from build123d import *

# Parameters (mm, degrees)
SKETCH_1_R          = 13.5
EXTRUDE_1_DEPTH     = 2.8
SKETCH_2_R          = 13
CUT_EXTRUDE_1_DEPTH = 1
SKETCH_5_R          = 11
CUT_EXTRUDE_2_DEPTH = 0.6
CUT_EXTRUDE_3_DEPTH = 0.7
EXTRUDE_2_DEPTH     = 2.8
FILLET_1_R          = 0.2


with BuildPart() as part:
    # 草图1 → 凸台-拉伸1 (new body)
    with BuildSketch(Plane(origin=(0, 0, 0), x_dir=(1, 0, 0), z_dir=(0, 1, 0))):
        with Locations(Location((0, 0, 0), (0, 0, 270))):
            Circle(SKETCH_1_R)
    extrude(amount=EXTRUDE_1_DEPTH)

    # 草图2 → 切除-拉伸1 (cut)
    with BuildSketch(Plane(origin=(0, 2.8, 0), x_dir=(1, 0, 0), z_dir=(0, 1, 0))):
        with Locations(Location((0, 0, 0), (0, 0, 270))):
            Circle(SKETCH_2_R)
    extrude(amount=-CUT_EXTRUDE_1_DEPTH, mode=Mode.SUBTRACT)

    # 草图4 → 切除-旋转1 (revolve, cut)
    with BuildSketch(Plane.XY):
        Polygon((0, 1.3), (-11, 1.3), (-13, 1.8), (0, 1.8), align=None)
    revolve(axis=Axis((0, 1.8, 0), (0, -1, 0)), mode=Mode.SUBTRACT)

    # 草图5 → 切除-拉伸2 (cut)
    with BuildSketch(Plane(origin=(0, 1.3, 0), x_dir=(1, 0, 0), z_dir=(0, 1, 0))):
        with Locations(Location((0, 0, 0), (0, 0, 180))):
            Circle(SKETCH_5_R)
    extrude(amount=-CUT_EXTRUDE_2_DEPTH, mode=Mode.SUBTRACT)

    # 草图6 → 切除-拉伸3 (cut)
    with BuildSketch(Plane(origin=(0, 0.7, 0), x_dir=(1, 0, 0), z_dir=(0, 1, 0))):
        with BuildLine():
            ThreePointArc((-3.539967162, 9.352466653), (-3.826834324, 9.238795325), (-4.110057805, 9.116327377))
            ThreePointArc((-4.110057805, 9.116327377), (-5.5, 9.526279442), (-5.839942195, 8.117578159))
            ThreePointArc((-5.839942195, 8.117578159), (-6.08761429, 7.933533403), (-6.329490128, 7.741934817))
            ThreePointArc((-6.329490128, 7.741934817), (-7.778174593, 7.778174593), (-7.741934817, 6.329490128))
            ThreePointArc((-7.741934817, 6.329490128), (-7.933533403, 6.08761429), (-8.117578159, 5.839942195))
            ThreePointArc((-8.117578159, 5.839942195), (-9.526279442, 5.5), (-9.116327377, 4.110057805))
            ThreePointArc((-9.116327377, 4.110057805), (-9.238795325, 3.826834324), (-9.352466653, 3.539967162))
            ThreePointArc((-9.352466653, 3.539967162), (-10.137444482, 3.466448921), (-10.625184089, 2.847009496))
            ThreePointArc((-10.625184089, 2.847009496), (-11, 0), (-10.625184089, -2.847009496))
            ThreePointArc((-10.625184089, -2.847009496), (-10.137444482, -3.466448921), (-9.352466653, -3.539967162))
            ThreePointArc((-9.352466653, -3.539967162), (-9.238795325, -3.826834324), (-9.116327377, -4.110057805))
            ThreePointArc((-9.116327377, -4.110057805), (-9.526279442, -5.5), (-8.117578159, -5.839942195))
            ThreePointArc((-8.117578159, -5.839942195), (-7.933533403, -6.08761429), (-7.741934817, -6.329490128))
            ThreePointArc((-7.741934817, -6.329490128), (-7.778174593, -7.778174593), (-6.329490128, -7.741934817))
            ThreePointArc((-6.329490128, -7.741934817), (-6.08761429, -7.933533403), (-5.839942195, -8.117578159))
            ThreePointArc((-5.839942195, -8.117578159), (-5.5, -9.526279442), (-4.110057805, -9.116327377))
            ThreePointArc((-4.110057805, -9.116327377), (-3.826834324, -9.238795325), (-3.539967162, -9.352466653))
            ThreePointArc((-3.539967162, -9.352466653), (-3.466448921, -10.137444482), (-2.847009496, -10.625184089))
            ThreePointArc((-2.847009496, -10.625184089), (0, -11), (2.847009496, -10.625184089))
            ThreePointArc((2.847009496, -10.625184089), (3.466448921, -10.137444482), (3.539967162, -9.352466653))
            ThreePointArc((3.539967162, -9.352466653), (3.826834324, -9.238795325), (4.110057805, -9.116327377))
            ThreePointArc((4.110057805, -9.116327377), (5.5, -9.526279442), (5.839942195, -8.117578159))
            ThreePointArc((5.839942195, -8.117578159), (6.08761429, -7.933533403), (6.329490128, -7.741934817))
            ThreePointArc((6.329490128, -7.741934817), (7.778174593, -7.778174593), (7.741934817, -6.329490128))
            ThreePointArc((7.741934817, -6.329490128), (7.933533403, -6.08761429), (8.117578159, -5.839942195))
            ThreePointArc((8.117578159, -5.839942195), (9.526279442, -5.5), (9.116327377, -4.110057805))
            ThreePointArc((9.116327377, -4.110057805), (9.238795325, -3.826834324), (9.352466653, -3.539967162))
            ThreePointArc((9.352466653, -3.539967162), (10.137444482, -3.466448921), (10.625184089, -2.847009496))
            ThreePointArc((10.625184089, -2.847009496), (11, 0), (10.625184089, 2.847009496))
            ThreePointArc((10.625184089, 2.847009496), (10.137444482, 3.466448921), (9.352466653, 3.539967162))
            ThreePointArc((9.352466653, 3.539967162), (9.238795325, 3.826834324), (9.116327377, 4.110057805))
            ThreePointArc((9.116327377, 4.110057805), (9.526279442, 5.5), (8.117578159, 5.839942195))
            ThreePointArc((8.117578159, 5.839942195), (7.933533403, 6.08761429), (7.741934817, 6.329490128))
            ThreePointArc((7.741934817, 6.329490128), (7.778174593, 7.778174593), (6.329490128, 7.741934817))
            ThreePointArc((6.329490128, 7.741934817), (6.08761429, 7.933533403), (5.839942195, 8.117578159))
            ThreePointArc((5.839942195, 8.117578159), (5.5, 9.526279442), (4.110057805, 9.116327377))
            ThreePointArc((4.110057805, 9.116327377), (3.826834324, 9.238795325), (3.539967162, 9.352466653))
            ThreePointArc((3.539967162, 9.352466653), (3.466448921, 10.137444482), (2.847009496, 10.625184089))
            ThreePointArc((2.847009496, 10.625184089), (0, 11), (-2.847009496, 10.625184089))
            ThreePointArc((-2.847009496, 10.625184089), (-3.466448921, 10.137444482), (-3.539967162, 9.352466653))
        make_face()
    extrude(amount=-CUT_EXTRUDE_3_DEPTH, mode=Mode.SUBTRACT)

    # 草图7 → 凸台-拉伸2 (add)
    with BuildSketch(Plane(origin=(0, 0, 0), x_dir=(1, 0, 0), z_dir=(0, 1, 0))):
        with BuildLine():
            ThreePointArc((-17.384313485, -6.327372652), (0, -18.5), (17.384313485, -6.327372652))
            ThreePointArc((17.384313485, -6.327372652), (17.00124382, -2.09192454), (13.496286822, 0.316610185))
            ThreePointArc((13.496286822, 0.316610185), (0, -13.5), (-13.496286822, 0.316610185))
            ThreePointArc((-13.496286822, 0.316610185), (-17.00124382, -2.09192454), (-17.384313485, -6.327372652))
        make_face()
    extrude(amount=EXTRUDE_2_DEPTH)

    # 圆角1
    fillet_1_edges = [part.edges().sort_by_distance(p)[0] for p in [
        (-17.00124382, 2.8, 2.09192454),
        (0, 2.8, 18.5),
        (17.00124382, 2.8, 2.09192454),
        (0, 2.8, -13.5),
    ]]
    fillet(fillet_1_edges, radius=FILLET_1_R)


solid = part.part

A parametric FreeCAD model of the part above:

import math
import FreeCAD as App
import Part
import Sketcher
from FreeCAD import Vector
Q = App.Units.Quantity


def edges_at(feature, points):
    """Names of the edges that pass closest to the given points."""
    edges = feature.Shape.Edges
    near = lambda p: min(range(len(edges)), key=lambda i: edges[i].distToShape(Part.Vertex(*p))[0])
    return sorted({f"Edge{near(p) + 1}" for p in points})

doc = App.newDocument("Part")
params = doc.addObject("Spreadsheet::Sheet", "Params")
for row, (alias, value) in enumerate([
    ("sketch1_diameter", "27 mm"),
    ("pad1_length", "2.8 mm"),
    ("sketch2_diameter", "26 mm"),
    ("pocket1_length", "1 mm"),
    ("sketch3_width", "11 mm"),
    ("sketch3_width2", "13 mm"),
    ("sketch3_height", "0.5 mm"),
    ("groove_angle", "360 deg"),
    ("sketch4_diameter", "22 mm"),
    ("pocket2_length", "0.6 mm"),
    ("sketch5_radius", "10 mm"),
    ("sketch5_radius2", "1 mm"),
    ("sketch5_radius3", "11 mm"),
    ("pocket3_length", "0.7 mm"),
    ("sketch6_radius", "5 mm"),
    ("sketch6_radius2", "18.5 mm"),
    ("sketch6_radius3", "13.5 mm"),
    ("pad2_length", "2.8 mm"),
    ("fillet_radius", "0.2 mm"),
], start=1):
    params.set(f"A{row}", alias)
    params.set(f"B{row}", "=" + value)
    params.setAlias(f"B{row}", alias)

body = doc.addObject("PartDesign::Body", "Body")

# Sketch on XZ plane
sketch1 = body.newObject("Sketcher::SketchObject", "Sketch")
sketch1.AttachmentSupport = (doc.getObject("XZ_Plane"), [""])
sketch1.MapMode = "FlatFace"
sketch1.addGeometry(Part.Circle(Vector(0, 0, 0), Vector(0, 0, 1), 14), False)
sketch1.addConstraint([
    Sketcher.Constraint("Coincident", 0, 3, -1, 1),
    Sketcher.Constraint("Diameter", 0, Q("27 mm")),
])
sketch1.setExpression("Constraints[1]", "Params.sketch1_diameter")
pad1 = body.newObject("PartDesign::Pad", "Pad")
pad1.Profile = sketch1
pad1.setExpression("Length", "Params.pad1_length")
pad1.Reversed = True

# Sketch on XZ plane
sketch2 = body.newObject("Sketcher::SketchObject", "Sketch001")
sketch2.AttachmentSupport = (doc.getObject("XZ_Plane"), [""])
sketch2.MapMode = "FlatFace"
sketch2.AttachmentOffset = App.Placement(Vector(0, 0, -2.8), App.Rotation())
sketch2.addGeometry(Part.Circle(Vector(0, 0, 0), Vector(0, 0, 1), 13), False)
sketch2.addConstraint([
    Sketcher.Constraint("Coincident", 0, 3, -1, 1),
    Sketcher.Constraint("Diameter", 0, Q("26 mm")),
])
sketch2.setExpression("Constraints[1]", "Params.sketch2_diameter")
pocket1 = body.newObject("PartDesign::Pocket", "Pocket")
pocket1.Profile = sketch2
pocket1.setExpression("Length", "Params.pocket1_length")
pocket1.Reversed = True

# Sketch on XY plane
sketch3 = body.newObject("Sketcher::SketchObject", "Sketch002")
sketch3.AttachmentSupport = (doc.getObject("XY_Plane"), [""])
sketch3.MapMode = "FlatFace"
sketch3.addGeometry([
    Part.LineSegment(Vector(-11, 1.3, 0), Vector(0, 1.3, 0)),
    Part.LineSegment(Vector(0, 1.3, 0), Vector(0, 1.8, 0)),
    Part.LineSegment(Vector(0, 1.8, 0), Vector(-13, 1.8, 0)),
    Part.LineSegment(Vector(-13, 1.8, 0), Vector(-11, 1.3, 0)),
], False)
sketch3.addConstraint([
    Sketcher.Constraint("Coincident", 0, 2, 1, 1),
    Sketcher.Constraint("Coincident", 1, 2, 2, 1),
    Sketcher.Constraint("Coincident", 2, 2, 3, 1),
    Sketcher.Constraint("Coincident", 3, 2, 0, 1),
    Sketcher.Constraint("Horizontal", 0),
    Sketcher.Constraint("Vertical", 1),
    Sketcher.Constraint("Horizontal", 2),
    Sketcher.Constraint("PointOnObject", 0, 2, -2),
    Sketcher.Constraint("DistanceX", 0, 1, 0, 2, Q("11 mm")),
    Sketcher.Constraint("DistanceX", 2, 2, 2, 1, Q("13 mm")),
    Sketcher.Constraint("DistanceY", 1, 1, 1, 2, Q("0.5 mm")),
    Sketcher.Constraint("DistanceY", -1, 1, 0, 2, Q("1.3 mm")),
])
sketch3.setExpression("Constraints[8]", "Params.sketch3_width")
sketch3.setExpression("Constraints[9]", "Params.sketch3_width2")
sketch3.setExpression("Constraints[10]", "Params.sketch3_height")
groove = body.newObject("PartDesign::Groove", "Groove")
groove.Profile = sketch3
groove.ReferenceAxis = (sketch3, ["V_Axis"])
groove.setExpression("Angle", "Params.groove_angle")

# Sketch on XZ plane
sketch4 = body.newObject("Sketcher::SketchObject", "Sketch003")
sketch4.AttachmentSupport = (doc.getObject("XZ_Plane"), [""])
sketch4.MapMode = "FlatFace"
sketch4.AttachmentOffset = App.Placement(Vector(0, 0, -1.3), App.Rotation())
sketch4.addGeometry(Part.Circle(Vector(0, 0, 0), Vector(0, 0, 1), 11), False)
sketch4.addConstraint([
    Sketcher.Constraint("Coincident", 0, 3, -1, 1),
    Sketcher.Constraint("Diameter", 0, Q("22 mm")),
])
sketch4.setExpression("Constraints[1]", "Params.sketch4_diameter")
pocket2 = body.newObject("PartDesign::Pocket", "Pocket001")
pocket2.Profile = sketch4
pocket2.setExpression("Length", "Params.pocket2_length")
pocket2.Reversed = True

# Sketch on XZ plane
sketch5 = body.newObject("Sketcher::SketchObject", "Sketch004")
sketch5.AttachmentSupport = (doc.getObject("XZ_Plane"), [""])
sketch5.MapMode = "FlatFace"
sketch5.AttachmentOffset = App.Placement(Vector(0, 0, -0.7), App.Rotation())
sketch5.addGeometry([
    Part.ArcOfCircle(Part.Circle(Vector(0, 0, 0), Vector(0, 0, 1), 10), math.radians(-114.27), math.radians(-110.73)),  # 0
    Part.ArcOfCircle(Part.Circle(Vector(-5, -8.7, 0), Vector(0, 0, 1), 1), math.radians(147), math.radians(333)),  # 1
    Part.ArcOfCircle(Part.Circle(Vector(0, 0, 0), Vector(0, 0, 1), 10), math.radians(-129.27), math.radians(-125.73)),  # 2
    Part.ArcOfCircle(Part.Circle(Vector(-7.1, -7.1, 0), Vector(0, 0, 1), 1), math.radians(132), math.radians(318)),  # 3
    Part.ArcOfCircle(Part.Circle(Vector(0, 0, 0), Vector(0, 0, 1), 10), math.radians(-144.27), math.radians(-140.73)),  # 4
    Part.ArcOfCircle(Part.Circle(Vector(-8.7, -5, 0), Vector(0, 0, 1), 1), math.radians(117), math.radians(303)),  # 5
    Part.ArcOfCircle(Part.Circle(Vector(0, 0, 0), Vector(0, 0, 1), 10), math.radians(-159.27), math.radians(-155.73)),  # 6
    Part.ArcOfCircle(Part.Circle(Vector(-9.7, -2.6, 0), Vector(0, 0, 1), 1), math.radians(-165), math.radians(-72)),  # 7
    Part.ArcOfCircle(Part.Circle(Vector(0, 0, 0), Vector(0, 0, 1), 11), math.radians(165), math.radians(195)),  # 8
    Part.ArcOfCircle(Part.Circle(Vector(-9.7, 2.6, 0), Vector(0, 0, 1), 1), math.radians(72), math.radians(165)),  # 9
    Part.ArcOfCircle(Part.Circle(Vector(0, 0, 0), Vector(0, 0, 1), 10), math.radians(155.73), math.radians(159.27)),  # 10
    Part.ArcOfCircle(Part.Circle(Vector(-8.7, 5, 0), Vector(0, 0, 1), 1), math.radians(57), math.radians(243)),  # 11
    Part.ArcOfCircle(Part.Circle(Vector(0, 0, 0), Vector(0, 0, 1), 10), math.radians(140.73), math.radians(144.27)),  # 12
    Part.ArcOfCircle(Part.Circle(Vector(-7.1, 7.1, 0), Vector(0, 0, 1), 1), math.radians(42), math.radians(228)),  # 13
    Part.ArcOfCircle(Part.Circle(Vector(0, 0, 0), Vector(0, 0, 1), 10), math.radians(125.73), math.radians(129.27)),  # 14
    Part.ArcOfCircle(Part.Circle(Vector(-5, 8.7, 0), Vector(0, 0, 1), 1), math.radians(27), math.radians(213)),  # 15
    Part.ArcOfCircle(Part.Circle(Vector(0, 0, 0), Vector(0, 0, 1), 10), math.radians(110.73), math.radians(114.27)),  # 16
    Part.ArcOfCircle(Part.Circle(Vector(-2.6, 9.7, 0), Vector(0, 0, 1), 1), math.radians(105), math.radians(198)),  # 17
    Part.ArcOfCircle(Part.Circle(Vector(0, 0, 0), Vector(0, 0, 1), 11), math.radians(75), math.radians(105)),  # 18
    Part.ArcOfCircle(Part.Circle(Vector(2.6, 9.7, 0), Vector(0, 0, 1), 1), math.radians(-18), math.radians(75)),  # 19
    Part.ArcOfCircle(Part.Circle(Vector(0, 0, 0), Vector(0, 0, 1), 10), math.radians(65.73), math.radians(69.27)),  # 20
    Part.ArcOfCircle(Part.Circle(Vector(5, 8.7, 0), Vector(0, 0, 1), 1), math.radians(-33), math.radians(153)),  # 21
    Part.ArcOfCircle(Part.Circle(Vector(0, 0, 0), Vector(0, 0, 1), 10), math.radians(50.73), math.radians(54.27)),  # 22
    Part.ArcOfCircle(Part.Circle(Vector(7.1, 7.1, 0), Vector(0, 0, 1), 1), math.radians(-48), math.radians(138)),  # 23
    Part.ArcOfCircle(Part.Circle(Vector(0, 0, 0), Vector(0, 0, 1), 10), math.radians(35.73), math.radians(39.27)),  # 24
    Part.ArcOfCircle(Part.Circle(Vector(8.7, 5, 0), Vector(0, 0, 1), 1), math.radians(-63), math.radians(123)),  # 25
    Part.ArcOfCircle(Part.Circle(Vector(0, 0, 0), Vector(0, 0, 1), 10), math.radians(20.73), math.radians(24.27)),  # 26
    Part.ArcOfCircle(Part.Circle(Vector(9.7, 2.6, 0), Vector(0, 0, 1), 1), math.radians(15), math.radians(108)),  # 27
    Part.ArcOfCircle(Part.Circle(Vector(0, 0, 0), Vector(0, 0, 1), 11), math.radians(-15), math.radians(15)),  # 28
    Part.ArcOfCircle(Part.Circle(Vector(9.7, -2.6, 0), Vector(0, 0, 1), 1), math.radians(-108), math.radians(-15)),  # 29
    Part.ArcOfCircle(Part.Circle(Vector(0, 0, 0), Vector(0, 0, 1), 10), math.radians(-24.27), math.radians(-20.73)),  # 30
    Part.ArcOfCircle(Part.Circle(Vector(8.7, -5, 0), Vector(0, 0, 1), 1), math.radians(-123), math.radians(63)),  # 31
    Part.ArcOfCircle(Part.Circle(Vector(0, 0, 0), Vector(0, 0, 1), 10), math.radians(-39.27), math.radians(-35.73)),  # 32
    Part.ArcOfCircle(Part.Circle(Vector(7.1, -7.1, 0), Vector(0, 0, 1), 1), math.radians(-138), math.radians(48)),  # 33
    Part.ArcOfCircle(Part.Circle(Vector(0, 0, 0), Vector(0, 0, 1), 10), math.radians(-54.27), math.radians(-50.73)),  # 34
    Part.ArcOfCircle(Part.Circle(Vector(5, -8.7, 0), Vector(0, 0, 1), 1), math.radians(-153), math.radians(33)),  # 35
    Part.ArcOfCircle(Part.Circle(Vector(0, 0, 0), Vector(0, 0, 1), 10), math.radians(-69.27), math.radians(-65.73)),  # 36
    Part.ArcOfCircle(Part.Circle(Vector(2.6, -9.7, 0), Vector(0, 0, 1), 1), math.radians(-75), math.radians(18)),  # 37
    Part.ArcOfCircle(Part.Circle(Vector(0, 0, 0), Vector(0, 0, 1), 11), math.radians(-105), math.radians(-75)),  # 38
    Part.ArcOfCircle(Part.Circle(Vector(-2.6, -9.7, 0), Vector(0, 0, 1), 1), math.radians(162), math.radians(255)),  # 39
], False)
sketch5.addConstraint([
    Sketcher.Constraint("Coincident", 0, 1, 1, 2),
    Sketcher.Constraint("Coincident", 1, 1, 2, 2),
    Sketcher.Constraint("Coincident", 2, 1, 3, 2),
    Sketcher.Constraint("Coincident", 3, 1, 4, 2),
    Sketcher.Constraint("Coincident", 4, 1, 5, 2),
    Sketcher.Constraint("Coincident", 5, 1, 6, 2),
    Sketcher.Constraint("Coincident", 6, 1, 7, 2),
    Sketcher.Constraint("Tangent", 7, 1, 8, 2),
    Sketcher.Constraint("Tangent", 8, 1, 9, 2),
    Sketcher.Constraint("Coincident", 9, 1, 10, 2),
    Sketcher.Constraint("Coincident", 10, 1, 11, 2),
    Sketcher.Constraint("Coincident", 11, 1, 12, 2),
    Sketcher.Constraint("Coincident", 12, 1, 13, 2),
    Sketcher.Constraint("Coincident", 13, 1, 14, 2),
    Sketcher.Constraint("Coincident", 14, 1, 15, 2),
    Sketcher.Constraint("Coincident", 15, 1, 16, 2),
    Sketcher.Constraint("Coincident", 16, 1, 17, 2),
    Sketcher.Constraint("Tangent", 17, 1, 18, 2),
    Sketcher.Constraint("Tangent", 18, 1, 19, 2),
    Sketcher.Constraint("Coincident", 19, 1, 20, 2),
    Sketcher.Constraint("Coincident", 20, 1, 21, 2),
    Sketcher.Constraint("Coincident", 21, 1, 22, 2),
    Sketcher.Constraint("Coincident", 22, 1, 23, 2),
    Sketcher.Constraint("Coincident", 23, 1, 24, 2),
    Sketcher.Constraint("Coincident", 24, 1, 25, 2),
    Sketcher.Constraint("Coincident", 25, 1, 26, 2),
    Sketcher.Constraint("Coincident", 26, 1, 27, 2),
    Sketcher.Constraint("Tangent", 27, 1, 28, 2),
    Sketcher.Constraint("Tangent", 28, 1, 29, 2),
    Sketcher.Constraint("Coincident", 29, 1, 30, 2),
    Sketcher.Constraint("Coincident", 30, 1, 31, 2),
    Sketcher.Constraint("Coincident", 31, 1, 32, 2),
    Sketcher.Constraint("Coincident", 32, 1, 33, 2),
    Sketcher.Constraint("Coincident", 33, 1, 34, 2),
    Sketcher.Constraint("Coincident", 34, 1, 35, 2),
    Sketcher.Constraint("Coincident", 35, 1, 36, 2),
    Sketcher.Constraint("Coincident", 36, 1, 37, 2),
    Sketcher.Constraint("Tangent", 37, 1, 38, 2),
    Sketcher.Constraint("Tangent", 38, 1, 39, 2),
    Sketcher.Constraint("Coincident", 39, 1, 0, 2),
    Sketcher.Constraint("Coincident", 0, 3, -1, 1),
    Sketcher.Constraint("Coincident", 2, 3, -1, 1),
    Sketcher.Constraint("Coincident", 4, 3, -1, 1),
    Sketcher.Constraint("Coincident", 6, 3, -1, 1),
    Sketcher.Constraint("Coincident", 8, 3, -1, 1),
    Sketcher.Constraint("Coincident", 10, 3, -1, 1),
    Sketcher.Constraint("Coincident", 12, 3, -1, 1),
    Sketcher.Constraint("Coincident", 14, 3, -1, 1),
    Sketcher.Constraint("Coincident", 16, 3, -1, 1),
    Sketcher.Constraint("Coincident", 18, 3, -1, 1),
    Sketcher.Constraint("Coincident", 20, 3, -1, 1),
    Sketcher.Constraint("Coincident", 22, 3, -1, 1),
    Sketcher.Constraint("Coincident", 24, 3, -1, 1),
    Sketcher.Constraint("Coincident", 26, 3, -1, 1),
    Sketcher.Constraint("Coincident", 28, 3, -1, 1),
    Sketcher.Constraint("Coincident", 30, 3, -1, 1),
    Sketcher.Constraint("Coincident", 32, 3, -1, 1),
    Sketcher.Constraint("Coincident", 34, 3, -1, 1),
    Sketcher.Constraint("Coincident", 36, 3, -1, 1),
    Sketcher.Constraint("Coincident", 38, 3, -1, 1),
    Sketcher.Constraint("Equal", 0, 2),
    Sketcher.Constraint("Equal", 1, 3),
    Sketcher.Constraint("Equal", 2, 4),
    Sketcher.Constraint("Equal", 3, 5),
    Sketcher.Constraint("Equal", 4, 6),
    Sketcher.Constraint("Equal", 5, 7),
    Sketcher.Constraint("Equal", 7, 9),
    Sketcher.Constraint("Equal", 6, 10),
    Sketcher.Constraint("Equal", 9, 11),
    Sketcher.Constraint("Equal", 10, 12),
    Sketcher.Constraint("Equal", 11, 13),
    Sketcher.Constraint("Equal", 12, 14),
    Sketcher.Constraint("Equal", 13, 15),
    Sketcher.Constraint("Equal", 14, 16),
    Sketcher.Constraint("Equal", 15, 17),
    Sketcher.Constraint("Equal", 8, 18),
    Sketcher.Constraint("Equal", 17, 19),
    Sketcher.Constraint("Equal", 16, 20),
    Sketcher.Constraint("Equal", 19, 21),
    Sketcher.Constraint("Equal", 20, 22),
    Sketcher.Constraint("Equal", 21, 23),
    Sketcher.Constraint("Equal", 22, 24),
    Sketcher.Constraint("Equal", 23, 25),
    Sketcher.Constraint("Equal", 24, 26),
    Sketcher.Constraint("Equal", 25, 27),
    Sketcher.Constraint("Equal", 18, 28),
    Sketcher.Constraint("Equal", 27, 29),
    Sketcher.Constraint("Equal", 26, 30),
    Sketcher.Constraint("Equal", 29, 31),
    Sketcher.Constraint("Equal", 30, 32),
    Sketcher.Constraint("Equal", 31, 33),
    Sketcher.Constraint("Equal", 32, 34),
    Sketcher.Constraint("Equal", 33, 35),
    Sketcher.Constraint("Equal", 34, 36),
    Sketcher.Constraint("Equal", 35, 37),
    Sketcher.Constraint("Equal", 28, 38),
    Sketcher.Constraint("Equal", 37, 39),
    Sketcher.Constraint("Symmetric", 1, 3, 21, 3, -1, 1),
    Sketcher.Constraint("Symmetric", 3, 3, 23, 3, -1, 1),
    Sketcher.Constraint("Symmetric", 5, 3, 25, 3, -1, 1),
    Sketcher.Constraint("Symmetric", 11, 3, 31, 3, -1, 1),
    Sketcher.Constraint("Symmetric", 13, 3, 33, 3, -1, 1),
    Sketcher.Constraint("Symmetric", 15, 3, 35, 3, -1, 1),
    Sketcher.Constraint("Symmetric", 15, 3, 21, 3, -2),
    Sketcher.Constraint("Symmetric", 13, 3, 23, 3, -2),
    Sketcher.Constraint("Symmetric", 11, 3, 25, 3, -2),
    Sketcher.Constraint("Horizontal", 17, 3, 19, 3),
    Sketcher.Constraint("Horizontal", 9, 3, 27, 3),
    Sketcher.Constraint("Horizontal", 7, 3, 29, 3),
    Sketcher.Constraint("Horizontal", 37, 3, 39, 3),
    Sketcher.Constraint("Vertical", 7, 3, 9, 3),
    Sketcher.Constraint("Vertical", 19, 3, 37, 3),
    Sketcher.Constraint("Radius", 0, Q("10 mm")),
    Sketcher.Constraint("Radius", 1, Q("1 mm")),
    Sketcher.Constraint("Radius", 8, Q("11 mm")),
    Sketcher.Constraint("DistanceX", 1, 3, -1, 1, Q("5 mm")),
    Sketcher.Constraint("DistanceY", 5, 3, -1, 1, Q("5 mm")),
    Sketcher.Constraint("DistanceX", 7, 3, -1, 1, Q("9.659258 mm")),
    Sketcher.Constraint("DistanceX", 17, 3, -1, 1, Q("2.58819 mm")),
    Sketcher.Constraint("DistanceY", 1, 1, -1, 1, Q("8.117578 mm")),
    Sketcher.Constraint("DistanceX", 2, 1, -1, 1, Q("6.32949 mm")),
    Sketcher.Constraint("DistanceY", 3, 1, -1, 1, Q("6.32949 mm")),
    Sketcher.Constraint("DistanceX", 4, 1, -1, 1, Q("8.117578 mm")),
])
sketch5.setExpression("Constraints[112]", "Params.sketch5_radius")
sketch5.setExpression("Constraints[113]", "Params.sketch5_radius2")
sketch5.setExpression("Constraints[114]", "Params.sketch5_radius3")
pocket3 = body.newObject("PartDesign::Pocket", "Pocket002")
pocket3.Profile = sketch5
pocket3.setExpression("Length", "Params.pocket3_length")
pocket3.Reversed = True

# Sketch on XZ plane
sketch6 = body.newObject("Sketcher::SketchObject", "Sketch005")
sketch6.AttachmentSupport = (doc.getObject("XZ_Plane"), [""])
sketch6.MapMode = "FlatFace"
sketch6.addGeometry([
    Part.ArcOfCircle(Part.Circle(Vector(0, 0, 0), Vector(0, 0, 1), 19), math.radians(20), math.radians(160)),
    Part.ArcOfCircle(Part.Circle(Vector(13, 5, 0), Vector(0, 0, 1), 5), math.radians(-81), math.radians(20)),
    Part.ArcOfCircle(Part.Circle(Vector(0, 0, 0), Vector(0, 0, 1), 14), math.radians(-1), math.radians(181)),
    Part.ArcOfCircle(Part.Circle(Vector(-13, 5, 0), Vector(0, 0, 1), 5), math.radians(160), math.radians(261)),
], False)
sketch6.addConstraint([
    Sketcher.Constraint("Tangent", 0, 1, 1, 2),
    Sketcher.Constraint("Coincident", 1, 1, 2, 1),
    Sketcher.Constraint("Coincident", 2, 2, 3, 2),
    Sketcher.Constraint("Tangent", 3, 1, 0, 2),
    Sketcher.Constraint("Coincident", 0, 3, -1, 1),
    Sketcher.Constraint("Coincident", 2, 3, -1, 1),
    Sketcher.Constraint("Equal", 1, 3),
    Sketcher.Constraint("Horizontal", 1, 3, 3, 3),
    Sketcher.Constraint("Radius", 1, Q("5 mm")),
    Sketcher.Constraint("Radius", 0, Q("18.5 mm")),
    Sketcher.Constraint("Radius", 2, Q("13.5 mm")),
    Sketcher.Constraint("DistanceX", 3, 3, 1, 3, Q("25.371701 mm")),
])
sketch6.setExpression("Constraints[8]", "Params.sketch6_radius")
sketch6.setExpression("Constraints[9]", "Params.sketch6_radius2")
sketch6.setExpression("Constraints[10]", "Params.sketch6_radius3")
pad2 = body.newObject("PartDesign::Pad", "Pad001")
pad2.Profile = sketch6
pad2.setExpression("Length", "Params.pad2_length")
pad2.Reversed = True
doc.recompute()

fillet = body.newObject("PartDesign::Fillet", "Fillet")
fillet.Base = (pad2, edges_at(pad2, [
    (-17.001, 2.8, 2.092),
    (0, 2.8, 18.5),
    (17.001, 2.8, 2.092),
    (0, 2.8, -13.5),
]))
fillet.setExpression("Radius", "Params.fillet_radius")

doc.recompute()
